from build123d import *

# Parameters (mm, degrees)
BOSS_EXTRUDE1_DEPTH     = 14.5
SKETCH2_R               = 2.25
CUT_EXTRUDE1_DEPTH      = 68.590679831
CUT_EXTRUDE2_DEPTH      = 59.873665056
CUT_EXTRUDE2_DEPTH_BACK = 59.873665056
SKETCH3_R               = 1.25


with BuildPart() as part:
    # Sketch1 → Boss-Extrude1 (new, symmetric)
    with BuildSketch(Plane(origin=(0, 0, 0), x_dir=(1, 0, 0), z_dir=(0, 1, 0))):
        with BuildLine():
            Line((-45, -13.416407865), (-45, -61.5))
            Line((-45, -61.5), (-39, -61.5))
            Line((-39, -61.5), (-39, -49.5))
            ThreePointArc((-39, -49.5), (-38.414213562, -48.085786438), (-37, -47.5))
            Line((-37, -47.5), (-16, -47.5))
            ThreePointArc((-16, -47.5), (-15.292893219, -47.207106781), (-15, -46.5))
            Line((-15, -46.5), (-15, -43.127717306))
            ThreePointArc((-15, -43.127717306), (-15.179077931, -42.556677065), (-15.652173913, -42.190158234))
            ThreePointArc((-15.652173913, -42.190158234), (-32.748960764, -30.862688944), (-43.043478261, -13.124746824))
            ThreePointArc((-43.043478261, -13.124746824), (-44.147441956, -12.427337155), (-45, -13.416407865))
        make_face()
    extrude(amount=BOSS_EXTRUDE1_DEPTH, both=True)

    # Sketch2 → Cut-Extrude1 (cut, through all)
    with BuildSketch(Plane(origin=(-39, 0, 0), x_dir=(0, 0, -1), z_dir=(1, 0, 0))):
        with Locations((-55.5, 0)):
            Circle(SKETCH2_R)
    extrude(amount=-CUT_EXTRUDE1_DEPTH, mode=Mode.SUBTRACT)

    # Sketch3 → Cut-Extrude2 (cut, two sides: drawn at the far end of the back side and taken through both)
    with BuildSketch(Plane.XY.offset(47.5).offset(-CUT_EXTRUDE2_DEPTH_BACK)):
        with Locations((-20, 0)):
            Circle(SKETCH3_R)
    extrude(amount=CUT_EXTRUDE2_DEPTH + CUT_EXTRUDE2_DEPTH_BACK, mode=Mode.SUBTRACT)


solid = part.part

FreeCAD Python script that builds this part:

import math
import FreeCAD as App
import Part
import Sketcher
from FreeCAD import Vector
Q = App.Units.Quantity

doc = App.newDocument("Part")
body = doc.addObject("PartDesign::Body", "Body")

# Sketch on XZ plane
sketch1 = body.newObject("Sketcher::SketchObject", "Sketch")
sketch1.AttachmentSupport = (doc.getObject("XZ_Plane"), [""])
sketch1.MapMode = "FlatFace"
sketch1.addGeometry(Part.LineSegment(Vector(-45, 13.4, 0), Vector(-45, 61.5, 0)), False)
sketch1.addGeometry(Part.LineSegment(Vector(-45, 61.5, 0), Vector(-39, 61.5, 0)), False)
sketch1.addGeometry(Part.LineSegment(Vector(-39, 61.5, 0), Vector(-39, 49.5, 0)), False)
sketch1.addGeometry(Part.ArcOfCircle(Part.Circle(Vector(-37, 49.5, 0), Vector(0, 0, 1), 2), math.radians(-180), math.radians(-90)), False)
sketch1.addGeometry(Part.LineSegment(Vector(-37, 47.5, 0), Vector(-16, 47.5, 0)), False)
sketch1.addGeometry(Part.ArcOfCircle(Part.Circle(Vector(-16, 46.5, 0), Vector(0, 0, 1), 1), math.radians(0), math.radians(90)), False)
sketch1.addGeometry(Part.LineSegment(Vector(-15, 46.5, 0), Vector(-15, 43.1, 0)), False)
sketch1.addGeometry(Part.ArcOfCircle(Part.Circle(Vector(-16, 43.1, 0), Vector(0, 0, 1), 1), math.radians(-70), math.radians(0)), False)
sketch1.addGeometry(Part.ArcOfCircle(Part.Circle(Vector(0, 0, 0), Vector(0, 0, 1), 45), math.radians(110), math.radians(163)), False)
sketch1.addGeometry(Part.ArcOfCircle(Part.Circle(Vector(-44, 13.4, 0), Vector(0, 0, 1), 1), math.radians(180), math.radians(343)), False)
sketch1.addConstraint(Sketcher.Constraint("Coincident", 0, 2, 1, 1))
sketch1.addConstraint(Sketcher.Constraint("Coincident", 1, 2, 2, 1))
sketch1.addConstraint(Sketcher.Constraint("Tangent", 2, 2, 3, 1))
sketch1.addConstraint(Sketcher.Constraint("Tangent", 3, 2, 4, 1))
sketch1.addConstraint(Sketcher.Constraint("Tangent", 4, 2, 5, 2))
sketch1.addConstraint(Sketcher.Constraint("Tangent", 5, 1, 6, 1))
sketch1.addConstraint(Sketcher.Constraint("Tangent", 6, 2, 7, 2))
sketch1.addConstraint(Sketcher.Constraint("Tangent", 7, 1, 8, 1))
sketch1.addConstraint(Sketcher.Constraint("Tangent", 8, 2, 9, 2))
sketch1.addConstraint(Sketcher.Constraint("Tangent", 9, 1, 0, 1))
sketch1.addConstraint(Sketcher.Constraint("Vertical", 0))
sketch1.addConstraint(Sketcher.Constraint("Horizontal", 1))
sketch1.addConstraint(Sketcher.Constraint("Vertical", 2))
sketch1.addConstraint(Sketcher.Constraint("Horizontal", 4))
sketch1.addConstraint(Sketcher.Constraint("Vertical", 6))
sketch1.addConstraint(Sketcher.Constraint("Coincident", 8, 3, -1, 1))
sketch1.addConstraint(Sketcher.Constraint("Equal", 5, 7))
sketch1.addConstraint(Sketcher.Constraint("Equal", 7, 9))
sketch1.addConstraint(Sketcher.Constraint("Radius", 3, Q("2 mm")))
sketch1.addConstraint(Sketcher.Constraint("Radius", 5, Q("1 mm")))
sketch1.addConstraint(Sketcher.Constraint("Radius", 8, Q("45 mm")))
sketch1.addConstraint(Sketcher.Constraint("DistanceX", 1, 1, 1, 2, Q("6 mm")))
sketch1.addConstraint(Sketcher.Constraint("DistanceX", 4, 1, 4, 2, Q("21 mm")))
sketch1.addConstraint(Sketcher.Constraint("DistanceY", 2, 2, 2, 1, Q("12 mm")))
sketch1.addConstraint(Sketcher.Constraint("DistanceX", 3, 3, -1, 1, Q("37 mm")))
sketch1.addConstraint(Sketcher.Constraint("DistanceY", -1, 1, 3, 3, Q("49.5 mm")))
pad1 = body.newObject("PartDesign::Pad", "Pad")
pad1.Profile = sketch1
pad1.Length = 29
pad1.Midplane = True

# Sketch on YZ plane
sketch2 = body.newObject("Sketcher::SketchObject", "Sketch001")
sketch2.AttachmentSupport = (doc.getObject("YZ_Plane"), [""])
sketch2.MapMode = "FlatFace"
sketch2.AttachmentOffset = App.Placement(Vector(0, 0, -39), App.Rotation())
sketch2.addGeometry(Part.Circle(Vector(0, 55.5, 0), Vector(0, 0, 1), 2.2), False)
sketch2.addConstraint(Sketcher.Constraint("PointOnObject", 0, 3, -2))
sketch2.addConstraint(Sketcher.Constraint("Diameter", 0, Q("4.5 mm")))
sketch2.addConstraint(Sketcher.Constraint("DistanceY", -1, 1, 0, 3, Q("55.5 mm")))
pocket1 = body.newObject("PartDesign::Pocket", "Pocket")
pocket1.Profile = sketch2
pocket1.Type = "ThroughAll"

# Sketch on XY plane
sketch3 = body.newObject("Sketcher::SketchObject", "Sketch002")
sketch3.AttachmentSupport = (doc.getObject("XY_Plane"), [""])
sketch3.MapMode = "FlatFace"
sketch3.AttachmentOffset = App.Placement(Vector(0, 0, 47.5), App.Rotation())
sketch3.addGeometry(Part.Circle(Vector(-20, 0, 0), Vector(0, 0, 1), 1.2), False)
sketch3.addConstraint(Sketcher.Constraint("PointOnObject", 0, 3, -1))
sketch3.addConstraint(Sketcher.Constraint("Diameter", 0, Q("2.5 mm")))
sketch3.addConstraint(Sketcher.Constraint("DistanceX", 0, 3, -1, 1, Q("20 mm")))
pocket2 = body.newObject("PartDesign::Pocket", "Pocket001")
pocket2.Profile = sketch3
pocket2.Type = "ThroughAll"
pocket2.Midplane = True

doc.recompute()
